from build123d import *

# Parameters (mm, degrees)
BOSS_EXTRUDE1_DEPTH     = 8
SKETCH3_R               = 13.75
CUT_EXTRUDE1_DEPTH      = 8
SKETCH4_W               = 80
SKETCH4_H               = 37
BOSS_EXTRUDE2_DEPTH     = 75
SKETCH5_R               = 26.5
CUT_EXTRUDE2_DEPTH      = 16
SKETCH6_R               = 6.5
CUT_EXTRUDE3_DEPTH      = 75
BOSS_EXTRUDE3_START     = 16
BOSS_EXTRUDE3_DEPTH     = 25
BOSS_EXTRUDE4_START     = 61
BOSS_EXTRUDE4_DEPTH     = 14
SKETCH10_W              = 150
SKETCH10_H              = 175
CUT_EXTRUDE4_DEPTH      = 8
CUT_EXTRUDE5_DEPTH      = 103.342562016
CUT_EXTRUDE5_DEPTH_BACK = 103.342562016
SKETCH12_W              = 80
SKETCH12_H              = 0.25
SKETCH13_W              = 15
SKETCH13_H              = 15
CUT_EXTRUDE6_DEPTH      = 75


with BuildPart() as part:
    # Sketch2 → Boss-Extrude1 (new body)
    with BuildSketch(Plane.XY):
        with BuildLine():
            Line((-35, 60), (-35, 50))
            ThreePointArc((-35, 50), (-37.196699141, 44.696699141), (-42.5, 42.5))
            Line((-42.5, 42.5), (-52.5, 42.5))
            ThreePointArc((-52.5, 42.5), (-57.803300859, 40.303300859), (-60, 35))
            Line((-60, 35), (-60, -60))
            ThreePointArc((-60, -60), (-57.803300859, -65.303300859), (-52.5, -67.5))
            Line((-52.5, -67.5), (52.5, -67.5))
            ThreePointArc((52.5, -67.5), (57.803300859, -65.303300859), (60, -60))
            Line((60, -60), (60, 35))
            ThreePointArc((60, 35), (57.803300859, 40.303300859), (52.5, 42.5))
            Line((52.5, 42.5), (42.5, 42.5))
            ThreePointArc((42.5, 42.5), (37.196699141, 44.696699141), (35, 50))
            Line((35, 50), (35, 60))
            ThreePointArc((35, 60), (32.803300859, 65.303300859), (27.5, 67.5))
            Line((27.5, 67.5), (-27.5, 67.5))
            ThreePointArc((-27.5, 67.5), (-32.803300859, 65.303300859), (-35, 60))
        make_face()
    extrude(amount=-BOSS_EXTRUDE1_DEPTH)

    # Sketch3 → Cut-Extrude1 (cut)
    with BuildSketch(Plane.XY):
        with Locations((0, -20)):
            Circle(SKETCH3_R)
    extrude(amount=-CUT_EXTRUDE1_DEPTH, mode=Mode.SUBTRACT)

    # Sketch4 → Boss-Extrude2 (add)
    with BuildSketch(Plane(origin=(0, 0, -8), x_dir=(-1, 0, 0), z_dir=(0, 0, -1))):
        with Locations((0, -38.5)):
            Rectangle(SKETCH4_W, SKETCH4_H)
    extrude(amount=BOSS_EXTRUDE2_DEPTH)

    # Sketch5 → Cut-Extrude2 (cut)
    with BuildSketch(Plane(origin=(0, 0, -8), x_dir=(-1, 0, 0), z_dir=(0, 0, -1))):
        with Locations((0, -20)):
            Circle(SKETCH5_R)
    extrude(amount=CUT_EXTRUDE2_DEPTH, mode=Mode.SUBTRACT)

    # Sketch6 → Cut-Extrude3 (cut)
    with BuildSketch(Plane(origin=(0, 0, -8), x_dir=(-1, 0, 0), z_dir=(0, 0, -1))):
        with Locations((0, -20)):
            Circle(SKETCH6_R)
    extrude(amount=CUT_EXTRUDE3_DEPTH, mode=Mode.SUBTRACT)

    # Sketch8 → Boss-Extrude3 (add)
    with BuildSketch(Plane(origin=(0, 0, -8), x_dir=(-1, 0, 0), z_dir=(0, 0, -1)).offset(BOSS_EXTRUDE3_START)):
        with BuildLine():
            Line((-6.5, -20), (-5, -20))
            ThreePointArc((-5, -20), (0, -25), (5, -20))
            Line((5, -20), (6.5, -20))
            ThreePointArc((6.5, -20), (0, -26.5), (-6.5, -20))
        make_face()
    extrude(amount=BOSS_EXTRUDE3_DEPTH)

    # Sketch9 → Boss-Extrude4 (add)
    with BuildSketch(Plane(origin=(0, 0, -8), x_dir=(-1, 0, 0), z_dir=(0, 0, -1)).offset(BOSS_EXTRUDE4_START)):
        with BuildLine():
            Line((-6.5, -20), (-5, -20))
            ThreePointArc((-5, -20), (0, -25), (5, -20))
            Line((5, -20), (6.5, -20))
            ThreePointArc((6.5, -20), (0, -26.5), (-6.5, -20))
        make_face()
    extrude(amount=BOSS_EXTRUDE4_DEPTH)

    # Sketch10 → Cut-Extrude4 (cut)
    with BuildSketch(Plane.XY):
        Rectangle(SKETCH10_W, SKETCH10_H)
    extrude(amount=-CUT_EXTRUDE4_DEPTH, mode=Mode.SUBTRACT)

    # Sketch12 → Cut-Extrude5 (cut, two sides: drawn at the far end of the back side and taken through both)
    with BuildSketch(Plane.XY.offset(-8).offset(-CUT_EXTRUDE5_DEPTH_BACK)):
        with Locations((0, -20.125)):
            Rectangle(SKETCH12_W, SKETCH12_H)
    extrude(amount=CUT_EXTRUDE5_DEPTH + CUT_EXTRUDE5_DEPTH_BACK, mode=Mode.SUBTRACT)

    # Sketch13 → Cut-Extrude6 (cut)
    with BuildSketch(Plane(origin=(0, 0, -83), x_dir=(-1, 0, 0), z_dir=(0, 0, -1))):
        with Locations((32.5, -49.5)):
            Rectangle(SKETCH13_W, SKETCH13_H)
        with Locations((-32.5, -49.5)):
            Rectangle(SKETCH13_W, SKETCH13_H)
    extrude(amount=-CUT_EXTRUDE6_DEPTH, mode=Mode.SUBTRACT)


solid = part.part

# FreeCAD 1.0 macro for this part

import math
import FreeCAD as App
import Part
import Sketcher


def add_polygon(sketch, points):
    """Adds a closed chain of lines whose ends are joined by coincident constraints."""
    first, n = sketch.GeometryCount, len(points)
    for a, b in zip(points, points[1:] + points[:1]):
        sketch.addGeometry(Part.LineSegment(App.Vector(*a, 0), App.Vector(*b, 0)), False)
    for i in range(n):
        sketch.addConstraint(Sketcher.Constraint("Coincident", first + i, 2, first + (i + 1) % n, 1))

doc = App.newDocument("Part")
body = doc.addObject("PartDesign::Body", "Body")

sketch1 = doc.addObject("Sketcher::SketchObject", "Sketch")
body.addObject(sketch1)
sketch1.AttachmentSupport = (doc.XY_Plane, [""])
sketch1.MapMode = "FlatFace"
sketch1.addGeometry([
    Part.LineSegment(App.Vector(-35, 60, 0), App.Vector(-35, 50, 0)),
    Part.ArcOfCircle(Part.Circle(App.Vector(-42, 50, 0), App.Vector(0, 0, 1), 8), math.radians(-90), math.radians(0)),
    Part.LineSegment(App.Vector(-42, 42, 0), App.Vector(-52, 42, 0)),
    Part.ArcOfCircle(Part.Circle(App.Vector(-52, 35, 0), App.Vector(0, 0, 1), 8), math.radians(90), math.radians(180)),
    Part.LineSegment(App.Vector(-60, 35, 0), App.Vector(-60, -60, 0)),
    Part.ArcOfCircle(Part.Circle(App.Vector(-52, -60, 0), App.Vector(0, 0, 1), 8), math.radians(180), math.radians(270)),
    Part.LineSegment(App.Vector(-52, -68, 0), App.Vector(52, -68, 0)),
    Part.ArcOfCircle(Part.Circle(App.Vector(52, -60, 0), App.Vector(0, 0, 1), 8), math.radians(-90), math.radians(0)),
    Part.LineSegment(App.Vector(60, -60, 0), App.Vector(60, 35, 0)),
    Part.ArcOfCircle(Part.Circle(App.Vector(52, 35, 0), App.Vector(0, 0, 1), 8), math.radians(0), math.radians(90)),
    Part.LineSegment(App.Vector(52, 42, 0), App.Vector(42, 42, 0)),
    Part.ArcOfCircle(Part.Circle(App.Vector(42, 50, 0), App.Vector(0, 0, 1), 8), math.radians(180), math.radians(270)),
    Part.LineSegment(App.Vector(35, 50, 0), App.Vector(35, 60, 0)),
    Part.ArcOfCircle(Part.Circle(App.Vector(28, 60, 0), App.Vector(0, 0, 1), 8), math.radians(0), math.radians(90)),
    Part.LineSegment(App.Vector(28, 68, 0), App.Vector(-28, 68, 0)),
    Part.ArcOfCircle(Part.Circle(App.Vector(-28, 60, 0), App.Vector(0, 0, 1), 8), math.radians(90), math.radians(180)),
], False)
sketch1.addConstraint([
    Sketcher.Constraint("Tangent", 0, 2, 1, 2),
    Sketcher.Constraint("Tangent", 1, 1, 2, 1),
    Sketcher.Constraint("Tangent", 2, 2, 3, 1),
    Sketcher.Constraint("Tangent", 3, 2, 4, 1),
    Sketcher.Constraint("Tangent", 4, 2, 5, 1),
    Sketcher.Constraint("Tangent", 5, 2, 6, 1),
    Sketcher.Constraint("Tangent", 6, 2, 7, 1),
    Sketcher.Constraint("Tangent", 7, 2, 8, 1),
    Sketcher.Constraint("Tangent", 8, 2, 9, 1),
    Sketcher.Constraint("Tangent", 9, 2, 10, 1),
    Sketcher.Constraint("Tangent", 10, 2, 11, 2),
    Sketcher.Constraint("Tangent", 11, 1, 12, 1),
    Sketcher.Constraint("Tangent", 12, 2, 13, 1),
    Sketcher.Constraint("Tangent", 13, 2, 14, 1),
    Sketcher.Constraint("Tangent", 14, 2, 15, 1),
    Sketcher.Constraint("Tangent", 15, 2, 0, 1),
    Sketcher.Constraint("Vertical", 0),
    Sketcher.Constraint("Horizontal", 2),
    Sketcher.Constraint("Vertical", 4),
    Sketcher.Constraint("Horizontal", 6),
    Sketcher.Constraint("Vertical", 8),
    Sketcher.Constraint("Horizontal", 10),
    Sketcher.Constraint("Vertical", 12),
    Sketcher.Constraint("Horizontal", 14),
    Sketcher.Constraint("Equal", 1, 3),
    Sketcher.Constraint("Equal", 3, 5),
    Sketcher.Constraint("Equal", 5, 7),
    Sketcher.Constraint("Equal", 7, 9),
    Sketcher.Constraint("Equal", 9, 11),
    Sketcher.Constraint("Equal", 11, 13),
    Sketcher.Constraint("Equal", 13, 15),
    Sketcher.Constraint("Symmetric", 3, 3, 9, 3, -2),
    Sketcher.Constraint("Equal", 2, 10),
    Sketcher.Constraint("Equal", 10, 0),
    Sketcher.Constraint("Radius", 1, 7.5),
    Sketcher.Constraint("DistanceX", 2, 2, 2, 1, 10.0),
    Sketcher.Constraint("DistanceX", 6, 1, 6, 2, 105.0),
    Sketcher.Constraint("DistanceY", 4, 2, 4, 1, 95.0),
    Sketcher.Constraint("DistanceY", -1, 1, 1, 3, 50.0),
])
pad1 = doc.addObject("PartDesign::Pad", "Pad")
body.addObject(pad1)
pad1.Profile = sketch1
pad1.Length = 8
pad1.Reversed = True

sketch2 = doc.addObject("Sketcher::SketchObject", "Sketch001")
body.addObject(sketch2)
sketch2.AttachmentSupport = (doc.XY_Plane, [""])
sketch2.MapMode = "FlatFace"
sketch2.addGeometry(Part.Circle(App.Vector(0, -20, 0), App.Vector(0, 0, 1), 14), False)
sketch2.addConstraint([
    Sketcher.Constraint("PointOnObject", 0, 3, -2),
    Sketcher.Constraint("Diameter", 0, 27.5),
    Sketcher.Constraint("DistanceY", 0, 3, -1, 1, 20.0),
])
pocket1 = doc.addObject("PartDesign::Pocket", "Pocket")
body.addObject(pocket1)
pocket1.Profile = sketch2
pocket1.Length = 8

sketch3 = doc.addObject("Sketcher::SketchObject", "Sketch002")
body.addObject(sketch3)
sketch3.AttachmentSupport = (doc.XY_Plane, [""])
sketch3.MapMode = "FlatFace"
sketch3.AttachmentOffset = App.Placement(App.Vector(0, 0, -8), App.Rotation())
add_polygon(sketch3, [(40, -20), (40, -57), (-40, -57), (-40, -20)])
sketch3.addConstraint([
    Sketcher.Constraint("Vertical", 0),
    Sketcher.Constraint("Horizontal", 1),
    Sketcher.Constraint("Vertical", 2),
    Sketcher.Constraint("Horizontal", 3),
    Sketcher.Constraint("DistanceX", 1, 2, 1, 1, 80.0),
    Sketcher.Constraint("DistanceY", 0, 2, 0, 1, 37.0),
    Sketcher.Constraint("DistanceX", -1, 1, 0, 2, 40.0),
    Sketcher.Constraint("DistanceY", 0, 2, -1, 1, 57.0),
])
pad2 = doc.addObject("PartDesign::Pad", "Pad001")
body.addObject(pad2)
pad2.Profile = sketch3
pad2.Length = 75
pad2.Reversed = True

sketch4 = doc.addObject("Sketcher::SketchObject", "Sketch003")
body.addObject(sketch4)
sketch4.AttachmentSupport = (doc.XY_Plane, [""])
sketch4.MapMode = "FlatFace"
sketch4.AttachmentOffset = App.Placement(App.Vector(0, 0, -8), App.Rotation())
sketch4.addGeometry(Part.Circle(App.Vector(0, -20, 0), App.Vector(0, 0, 1), 26), False)
sketch4.addConstraint([
    Sketcher.Constraint("PointOnObject", 0, 3, -2),
    Sketcher.Constraint("Diameter", 0, 53.0),
    Sketcher.Constraint("DistanceY", 0, 3, -1, 1, 20.0),
])
pocket2 = doc.addObject("PartDesign::Pocket", "Pocket001")
body.addObject(pocket2)
pocket2.Profile = sketch4
pocket2.Length = 16

sketch5 = doc.addObject("Sketcher::SketchObject", "Sketch004")
body.addObject(sketch5)
sketch5.AttachmentSupport = (doc.XY_Plane, [""])
sketch5.MapMode = "FlatFace"
sketch5.AttachmentOffset = App.Placement(App.Vector(0, 0, -8), App.Rotation())
sketch5.addGeometry(Part.Circle(App.Vector(0, -20, 0), App.Vector(0, 0, 1), 6), False)
sketch5.addConstraint([
    Sketcher.Constraint("PointOnObject", 0, 3, -2),
    Sketcher.Constraint("Diameter", 0, 13.0),
    Sketcher.Constraint("DistanceY", 0, 3, -1, 1, 20.0),
])
pocket3 = doc.addObject("PartDesign::Pocket", "Pocket002")
body.addObject(pocket3)
pocket3.Profile = sketch5
pocket3.Length = 75

sketch6 = doc.addObject("Sketcher::SketchObject", "Sketch005")
body.addObject(sketch6)
sketch6.AttachmentSupport = (doc.XY_Plane, [""])
sketch6.MapMode = "FlatFace"
sketch6.AttachmentOffset = App.Placement(App.Vector(0, 0, -24), App.Rotation())
sketch6.addGeometry([
    Part.LineSegment(App.Vector(5, -20, 0), App.Vector(6.5, -20, 0)),
    Part.ArcOfCircle(Part.Circle(App.Vector(0, -20, 0), App.Vector(0, 0, 1), 6.5), math.radians(180), math.radians(360)),
    Part.LineSegment(App.Vector(-6.5, -20, 0), App.Vector(-5, -20, 0)),
    Part.ArcOfCircle(Part.Circle(App.Vector(0, -20, 0), App.Vector(0, 0, 1), 5), math.radians(180), math.radians(360)),
], False)
sketch6.addConstraint([
    Sketcher.Constraint("Coincident", 0, 2, 1, 2),
    Sketcher.Constraint("Coincident", 1, 1, 2, 1),
    Sketcher.Constraint("Coincident", 2, 2, 3, 1),
    Sketcher.Constraint("Coincident", 3, 2, 0, 1),
    Sketcher.Constraint("Horizontal", 0),
    Sketcher.Constraint("Horizontal", 2),
    Sketcher.Constraint("Coincident", 3, 3, 1, 3),
    Sketcher.Constraint("Symmetric", 0, 2, 1, 1, -2),
    Sketcher.Constraint("Horizontal", 3, 3, 0, 2),
    Sketcher.Constraint("Radius", 3, 5.0),
    Sketcher.Constraint("Radius", 1, 6.5),
    Sketcher.Constraint("DistanceY", 1, 3, -1, 1, 20.0),
])
pad3 = doc.addObject("PartDesign::Pad", "Pad002")
body.addObject(pad3)
pad3.Profile = sketch6
pad3.Length = 25
pad3.Reversed = True

sketch7 = doc.addObject("Sketcher::SketchObject", "Sketch006")
body.addObject(sketch7)
sketch7.AttachmentSupport = (doc.XY_Plane, [""])
sketch7.MapMode = "FlatFace"
sketch7.AttachmentOffset = App.Placement(App.Vector(0, 0, -69), App.Rotation())
sketch7.addGeometry([
    Part.LineSegment(App.Vector(5, -20, 0), App.Vector(6.5, -20, 0)),
    Part.ArcOfCircle(Part.Circle(App.Vector(0, -20, 0), App.Vector(0, 0, 1), 6.5), math.radians(180), math.radians(360)),
    Part.LineSegment(App.Vector(-6.5, -20, 0), App.Vector(-5, -20, 0)),
    Part.ArcOfCircle(Part.Circle(App.Vector(0, -20, 0), App.Vector(0, 0, 1), 5), math.radians(180), math.radians(360)),
], False)
sketch7.addConstraint([
    Sketcher.Constraint("Coincident", 0, 2, 1, 2),
    Sketcher.Constraint("Coincident", 1, 1, 2, 1),
    Sketcher.Constraint("Coincident", 2, 2, 3, 1),
    Sketcher.Constraint("Coincident", 3, 2, 0, 1),
    Sketcher.Constraint("Horizontal", 0),
    Sketcher.Constraint("Horizontal", 2),
    Sketcher.Constraint("Coincident", 3, 3, 1, 3),
    Sketcher.Constraint("Symmetric", 0, 2, 1, 1, -2),
    Sketcher.Constraint("Horizontal", 3, 3, 0, 2),
    Sketcher.Constraint("Radius", 3, 5.0),
    Sketcher.Constraint("Radius", 1, 6.5),
    Sketcher.Constraint("DistanceY", 1, 3, -1, 1, 20.0),
])
pad4 = doc.addObject("PartDesign::Pad", "Pad003")
body.addObject(pad4)
pad4.Profile = sketch7
pad4.Length = 14
pad4.Reversed = True

sketch8 = doc.addObject("Sketcher::SketchObject", "Sketch007")
body.addObject(sketch8)
sketch8.AttachmentSupport = (doc.XY_Plane, [""])
sketch8.MapMode = "FlatFace"
add_polygon(sketch8, [(-75, 88), (-75, -88), (75, -88), (75, 88)])
sketch8.addConstraint([
    Sketcher.Constraint("Vertical", 0),
    Sketcher.Constraint("Horizontal", 1),
    Sketcher.Constraint("Vertical", 2),
    Sketcher.Constraint("Horizontal", 3),
    Sketcher.Constraint("Symmetric", 0, 2, 2, 2, -1, 1),
    Sketcher.Constraint("DistanceX", 1, 1, 1, 2, 150.0),
    Sketcher.Constraint("DistanceY", 0, 2, 0, 1, 175.0),
])
pocket4 = doc.addObject("PartDesign::Pocket", "Pocket003")
body.addObject(pocket4)
pocket4.Profile = sketch8
pocket4.Length = 8

sketch9 = doc.addObject("Sketcher::SketchObject", "Sketch008")
body.addObject(sketch9)
sketch9.AttachmentSupport = (doc.XY_Plane, [""])
sketch9.MapMode = "FlatFace"
sketch9.AttachmentOffset = App.Placement(App.Vector(0, 0, -8), App.Rotation())
add_polygon(sketch9, [(-40, -20), (-40, -20.25), (40, -20.25), (40, -20)])
sketch9.addConstraint([
    Sketcher.Constraint("Vertical", 0),
    Sketcher.Constraint("Horizontal", 1),
    Sketcher.Constraint("Vertical", 2),
    Sketcher.Constraint("Horizontal", 3),
    Sketcher.Constraint("DistanceX", 1, 1, 1, 2, 80.0),
    Sketcher.Constraint("DistanceX", 0, 2, -1, 1, 40.0),
    Sketcher.Constraint("DistanceY", 2, 2, -1, 1, 20.0),
    Sketcher.Constraint("DistanceY", 0, 2, 0, 1, 0.25),
])
pocket5 = doc.addObject("PartDesign::Pocket", "Pocket004")
body.addObject(pocket5)
pocket5.Profile = sketch9
pocket5.Type = "ThroughAll"
pocket5.Midplane = True

sketch10 = doc.addObject("Sketcher::SketchObject", "Sketch009")
body.addObject(sketch10)
sketch10.AttachmentSupport = (doc.XY_Plane, [""])
sketch10.MapMode = "FlatFace"
sketch10.AttachmentOffset = App.Placement(App.Vector(0, 0, -83), App.Rotation())
add_polygon(sketch10, [(-25, -42), (-25, -57), (-40, -57), (-40, -42)])
add_polygon(sketch10, [(40, -42), (40, -57), (25, -57), (25, -42)])
sketch10.addConstraint([
    Sketcher.Constraint("Vertical", 0),
    Sketcher.Constraint("Horizontal", 1),
    Sketcher.Constraint("Vertical", 2),
    Sketcher.Constraint("Horizontal", 3),
    Sketcher.Constraint("Vertical", 4),
    Sketcher.Constraint("Horizontal", 5),
    Sketcher.Constraint("Vertical", 6),
    Sketcher.Constraint("Horizontal", 7),
    Sketcher.Constraint("Symmetric", 1, 2, 4, 2, -2),
    Sketcher.Constraint("Symmetric", 3, 2, 6, 2, -2),
    Sketcher.Constraint("Equal", 7, 0),
    Sketcher.Constraint("DistanceX", 1, 2, 1, 1, 15.0),
    Sketcher.Constraint("DistanceX", 0, 2, -1, 1, 25.0),
    Sketcher.Constraint("DistanceY", 0, 2, -1, 1, 57.0),
])
pocket6 = doc.addObject("PartDesign::Pocket", "Pocket005")
body.addObject(pocket6)
pocket6.Profile = sketch10
pocket6.Length = 75
pocket6.Reversed = True

doc.recompute()
